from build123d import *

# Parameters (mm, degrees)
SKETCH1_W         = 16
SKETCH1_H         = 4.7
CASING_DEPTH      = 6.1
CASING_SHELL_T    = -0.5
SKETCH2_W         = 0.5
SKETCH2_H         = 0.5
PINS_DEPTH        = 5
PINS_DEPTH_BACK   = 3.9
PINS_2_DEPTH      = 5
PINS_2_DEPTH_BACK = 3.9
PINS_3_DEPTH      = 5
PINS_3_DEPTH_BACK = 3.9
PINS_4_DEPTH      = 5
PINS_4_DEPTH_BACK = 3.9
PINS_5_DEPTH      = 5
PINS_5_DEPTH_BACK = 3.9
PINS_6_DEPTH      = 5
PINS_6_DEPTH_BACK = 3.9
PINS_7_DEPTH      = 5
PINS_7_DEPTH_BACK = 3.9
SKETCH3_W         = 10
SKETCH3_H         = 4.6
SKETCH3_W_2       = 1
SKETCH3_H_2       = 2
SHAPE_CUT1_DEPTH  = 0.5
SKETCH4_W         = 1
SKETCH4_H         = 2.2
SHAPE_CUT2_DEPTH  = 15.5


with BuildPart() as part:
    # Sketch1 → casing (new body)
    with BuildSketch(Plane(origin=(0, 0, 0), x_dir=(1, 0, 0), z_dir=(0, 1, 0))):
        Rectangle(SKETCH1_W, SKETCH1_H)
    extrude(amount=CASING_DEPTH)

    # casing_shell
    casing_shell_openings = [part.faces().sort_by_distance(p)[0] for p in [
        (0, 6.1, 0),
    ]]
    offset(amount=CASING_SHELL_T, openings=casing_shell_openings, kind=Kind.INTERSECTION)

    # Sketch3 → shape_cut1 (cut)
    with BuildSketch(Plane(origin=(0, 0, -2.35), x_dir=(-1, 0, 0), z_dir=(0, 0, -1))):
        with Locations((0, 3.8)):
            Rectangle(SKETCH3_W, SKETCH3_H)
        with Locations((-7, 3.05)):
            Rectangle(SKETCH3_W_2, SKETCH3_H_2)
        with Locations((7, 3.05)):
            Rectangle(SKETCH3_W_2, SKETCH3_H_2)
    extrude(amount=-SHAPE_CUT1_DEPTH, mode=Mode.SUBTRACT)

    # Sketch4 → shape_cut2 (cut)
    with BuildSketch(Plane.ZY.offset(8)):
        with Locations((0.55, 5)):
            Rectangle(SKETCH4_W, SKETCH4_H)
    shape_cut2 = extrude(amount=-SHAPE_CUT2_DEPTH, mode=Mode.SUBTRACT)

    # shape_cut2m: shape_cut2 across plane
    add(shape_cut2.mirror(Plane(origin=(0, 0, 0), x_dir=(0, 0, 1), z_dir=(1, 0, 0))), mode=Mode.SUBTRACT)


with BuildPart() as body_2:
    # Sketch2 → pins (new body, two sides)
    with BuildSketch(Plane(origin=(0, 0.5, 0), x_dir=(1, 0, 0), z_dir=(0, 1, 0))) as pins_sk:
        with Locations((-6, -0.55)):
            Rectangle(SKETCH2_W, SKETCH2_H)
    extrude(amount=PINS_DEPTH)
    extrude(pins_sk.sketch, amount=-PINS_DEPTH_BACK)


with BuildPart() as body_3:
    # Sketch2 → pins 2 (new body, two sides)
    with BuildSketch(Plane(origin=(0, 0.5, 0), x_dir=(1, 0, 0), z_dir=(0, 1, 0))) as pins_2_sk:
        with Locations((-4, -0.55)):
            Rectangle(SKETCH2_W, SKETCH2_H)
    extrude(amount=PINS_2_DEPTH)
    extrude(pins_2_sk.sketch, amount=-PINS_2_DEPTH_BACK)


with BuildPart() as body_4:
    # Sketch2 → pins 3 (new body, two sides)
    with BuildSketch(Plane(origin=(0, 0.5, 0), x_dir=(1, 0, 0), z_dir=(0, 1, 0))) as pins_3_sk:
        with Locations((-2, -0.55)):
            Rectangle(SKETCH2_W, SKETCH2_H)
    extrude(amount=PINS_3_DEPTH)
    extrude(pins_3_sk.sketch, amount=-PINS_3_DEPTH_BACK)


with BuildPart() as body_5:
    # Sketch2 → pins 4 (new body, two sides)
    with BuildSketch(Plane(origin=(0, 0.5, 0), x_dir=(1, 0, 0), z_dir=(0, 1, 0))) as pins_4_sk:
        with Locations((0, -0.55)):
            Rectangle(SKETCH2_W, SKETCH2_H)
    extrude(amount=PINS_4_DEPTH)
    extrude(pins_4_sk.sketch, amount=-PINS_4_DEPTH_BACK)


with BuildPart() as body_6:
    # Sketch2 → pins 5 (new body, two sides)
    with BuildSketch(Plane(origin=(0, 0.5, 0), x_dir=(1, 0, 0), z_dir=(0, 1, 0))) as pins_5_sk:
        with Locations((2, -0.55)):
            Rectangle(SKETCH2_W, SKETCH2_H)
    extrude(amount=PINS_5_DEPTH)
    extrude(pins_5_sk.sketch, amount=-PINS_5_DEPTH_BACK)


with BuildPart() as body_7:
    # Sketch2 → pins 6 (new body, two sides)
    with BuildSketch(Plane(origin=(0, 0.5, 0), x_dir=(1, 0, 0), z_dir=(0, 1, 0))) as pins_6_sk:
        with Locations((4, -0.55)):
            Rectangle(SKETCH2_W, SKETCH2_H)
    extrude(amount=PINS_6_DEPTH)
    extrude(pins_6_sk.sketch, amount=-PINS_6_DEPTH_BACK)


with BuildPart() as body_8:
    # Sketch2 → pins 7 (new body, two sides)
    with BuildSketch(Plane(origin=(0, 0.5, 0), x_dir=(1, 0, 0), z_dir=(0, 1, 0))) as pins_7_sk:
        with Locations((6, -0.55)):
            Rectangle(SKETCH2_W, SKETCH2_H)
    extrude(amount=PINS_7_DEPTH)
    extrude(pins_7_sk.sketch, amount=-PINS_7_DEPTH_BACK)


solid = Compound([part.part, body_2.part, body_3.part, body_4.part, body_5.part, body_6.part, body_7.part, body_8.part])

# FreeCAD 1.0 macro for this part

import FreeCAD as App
import Part
import Sketcher

V = App.Vector
Q = App.Units.Quantity


def faces_at(feature, points):
    """Names of the faces that lie closest to the given points."""
    faces = feature.Shape.Faces
    near = lambda p: min(range(len(faces)), key=lambda i: faces[i].distToShape(Part.Vertex(*p))[0])
    return sorted({f"Face{near(p) + 1}" for p in points})


def add_polygon(sketch, points):
    """Adds a closed chain of lines whose ends are joined by coincident constraints."""
    first, n = sketch.GeometryCount, len(points)
    for a, b in zip(points, points[1:] + points[:1]):
        sketch.addGeometry(Part.LineSegment(App.Vector(*a, 0), App.Vector(*b, 0)), False)
    for i in range(n):
        sketch.addConstraint(Sketcher.Constraint("Coincident", first + i, 2, first + (i + 1) % n, 1))

doc = App.newDocument("Part")
body = doc.addObject("PartDesign::Body", "Body")

sketch1 = doc.addObject("Sketcher::SketchObject", "Sketch")
body.addObject(sketch1)
sketch1.AttachmentSupport = (doc.XZ_Plane, [""])
sketch1.MapMode = "FlatFace"
add_polygon(sketch1, [(-8, -2.35), (-8, 2.35), (8, 2.35), (8, -2.35)])
sketch1.addConstraint(Sketcher.Constraint("Vertical", 0))
sketch1.addConstraint(Sketcher.Constraint("Horizontal", 1))
sketch1.addConstraint(Sketcher.Constraint("Vertical", 2))
sketch1.addConstraint(Sketcher.Constraint("Horizontal", 3))
sketch1.addConstraint(Sketcher.Constraint("Symmetric", 0, 2, 2, 2, -1, 1))
sketch1.addConstraint(Sketcher.Constraint("DistanceX", 1, 1, 1, 2, Q("16 mm")))
sketch1.addConstraint(Sketcher.Constraint("DistanceY", 0, 1, 0, 2, Q("4.7 mm")))
pad1 = doc.addObject("PartDesign::Pad", "Pad")
body.addObject(pad1)
pad1.Profile = sketch1
pad1.Length = 6.1
pad1.Reversed = True
doc.recompute()

thickness = doc.addObject("PartDesign::Thickness", "Thickness")
body.addObject(thickness)
thickness.Base = (pad1, faces_at(pad1, [(0, 6.1, 0)]))
thickness.Value = 0.5
thickness.Reversed = True
thickness.Join = "Intersection"

sketch2 = doc.addObject("Sketcher::SketchObject", "Sketch001")
body.addObject(sketch2)
sketch2.AttachmentSupport = (doc.XY_Plane, [""])
sketch2.MapMode = "FlatFace"
sketch2.AttachmentOffset = App.Placement(V(0, 0, -2.35), App.Rotation())
add_polygon(sketch2, [(5, 6.1), (5, 1.5), (-5, 1.5), (-5, 6.1)])
add_polygon(sketch2, [(7.5, 4.05), (7.5, 2.05), (6.5, 2.05), (6.5, 4.05)])
add_polygon(sketch2, [(-6.5, 4.05), (-6.5, 2.05), (-7.5, 2.05), (-7.5, 4.05)])
sketch2.addConstraint(Sketcher.Constraint("Vertical", 0))
sketch2.addConstraint(Sketcher.Constraint("Horizontal", 1))
sketch2.addConstraint(Sketcher.Constraint("Vertical", 2))
sketch2.addConstraint(Sketcher.Constraint("Horizontal", 3))
sketch2.addConstraint(Sketcher.Constraint("Vertical", 4))
sketch2.addConstraint(Sketcher.Constraint("Horizontal", 5))
sketch2.addConstraint(Sketcher.Constraint("Vertical", 6))
sketch2.addConstraint(Sketcher.Constraint("Horizontal", 7))
sketch2.addConstraint(Sketcher.Constraint("Vertical", 8))
sketch2.addConstraint(Sketcher.Constraint("Horizontal", 9))
sketch2.addConstraint(Sketcher.Constraint("Vertical", 10))
sketch2.addConstraint(Sketcher.Constraint("Horizontal", 11))
sketch2.addConstraint(Sketcher.Constraint("Symmetric", 5, 2, 8, 2, -2))
sketch2.addConstraint(Sketcher.Constraint("Symmetric", 7, 2, 10, 2, -2))
sketch2.addConstraint(Sketcher.Constraint("DistanceX", 1, 2, 1, 1, Q("10 mm")))
sketch2.addConstraint(Sketcher.Constraint("DistanceX", 5, 2, 5, 1, Q("1 mm")))
sketch2.addConstraint(Sketcher.Constraint("DistanceY", 4, 2, 4, 1, Q("2 mm")))
sketch2.addConstraint(Sketcher.Constraint("DistanceY", 0, 2, 0, 1, Q("4.6 mm")))
sketch2.addConstraint(Sketcher.Constraint("DistanceX", -1, 1, 0, 2, Q("5 mm")))
sketch2.addConstraint(Sketcher.Constraint("DistanceX", 8, 2, 5, 2, Q("13 mm")))
sketch2.addConstraint(Sketcher.Constraint("DistanceY", -1, 1, 0, 2, Q("1.5 mm")))
sketch2.addConstraint(Sketcher.Constraint("DistanceY", -1, 1, 4, 2, Q("2.05 mm")))
pocket1 = doc.addObject("PartDesign::Pocket", "Pocket")
body.addObject(pocket1)
pocket1.Profile = sketch2
pocket1.Length = 0.5
pocket1.Reversed = True

sketch3 = doc.addObject("Sketcher::SketchObject", "Sketch002")
body.addObject(sketch3)
sketch3.AttachmentSupport = (doc.YZ_Plane, [""])
sketch3.MapMode = "FlatFace"
sketch3.AttachmentOffset = App.Placement(V(0, 0, -8), App.Rotation())
add_polygon(sketch3, [(6.1, 0.05), (3.9, 0.05), (3.9, 1.05), (6.1, 1.05)])
sketch3.addConstraint(Sketcher.Constraint("Horizontal", 0))
sketch3.addConstraint(Sketcher.Constraint("Vertical", 1))
sketch3.addConstraint(Sketcher.Constraint("Horizontal", 2))
sketch3.addConstraint(Sketcher.Constraint("Vertical", 3))
sketch3.addConstraint(Sketcher.Constraint("DistanceY", 1, 1, 1, 2, Q("1 mm")))
sketch3.addConstraint(Sketcher.Constraint("DistanceX", 0, 2, 0, 1, Q("2.2 mm")))
sketch3.addConstraint(Sketcher.Constraint("DistanceX", -1, 1, 0, 2, Q("3.9 mm")))
sketch3.addConstraint(Sketcher.Constraint("DistanceY", -1, 1, 0, 2, Q("0.05 mm")))
pocket2 = doc.addObject("PartDesign::Pocket", "Pocket001")
body.addObject(pocket2)
pocket2.Profile = sketch3
pocket2.Length = 15.5
pocket2.Reversed = True
doc.recompute()

mirrored = doc.addObject("PartDesign::Mirrored", "Mirrored")
body.addObject(mirrored)
mirrored.Originals = [pocket2]
mirrored.MirrorPlane = (doc.YZ_Plane, [""])
body.Tip = mirrored
body2 = doc.addObject("PartDesign::Body", "Body001")

sketch4 = doc.addObject("Sketcher::SketchObject", "Sketch003")
body2.addObject(sketch4)
sketch4.AttachmentSupport = (doc.getObject("XZ_Plane001"), [""])
sketch4.MapMode = "FlatFace"
sketch4.AttachmentOffset = App.Placement(V(0, 0, -0.5), App.Rotation())
add_polygon(sketch4, [(-6.25, 0.3), (-6.25, 0.8), (-5.75, 0.8), (-5.75, 0.3)])
sketch4.addConstraint(Sketcher.Constraint("Vertical", 0))
sketch4.addConstraint(Sketcher.Constraint("Horizontal", 1))
sketch4.addConstraint(Sketcher.Constraint("Vertical", 2))
sketch4.addConstraint(Sketcher.Constraint("Horizontal", 3))
sketch4.addConstraint(Sketcher.Constraint("Equal", 3, 0))
sketch4.addConstraint(Sketcher.Constraint("DistanceX", 1, 1, 1, 2, Q("0.5 mm")))
sketch4.addConstraint(Sketcher.Constraint("DistanceY", -1, 1, 0, 2, Q("0.8 mm")))
sketch4.addConstraint(Sketcher.Constraint("DistanceX", 0, 2, -1, 1, Q("6.25 mm")))
pad2 = doc.addObject("PartDesign::Pad", "Pad001")
body2.addObject(pad2)
pad2.Profile = sketch4
pad2.Type = "TwoLengths"
pad2.Length = 5
pad2.Length2 = 3.9
pad2.Reversed = True
body3 = doc.addObject("PartDesign::Body", "Body002")

sketch5 = doc.addObject("Sketcher::SketchObject", "Sketch004")
body3.addObject(sketch5)
sketch5.AttachmentSupport = (doc.getObject("XZ_Plane002"), [""])
sketch5.MapMode = "FlatFace"
sketch5.AttachmentOffset = App.Placement(V(0, 0, -0.5), App.Rotation())
add_polygon(sketch5, [(-4.25, 0.3), (-4.25, 0.8), (-3.75, 0.8), (-3.75, 0.3)])
sketch5.addConstraint(Sketcher.Constraint("Vertical", 0))
sketch5.addConstraint(Sketcher.Constraint("Horizontal", 1))
sketch5.addConstraint(Sketcher.Constraint("Vertical", 2))
sketch5.addConstraint(Sketcher.Constraint("Horizontal", 3))
sketch5.addConstraint(Sketcher.Constraint("Equal", 3, 0))
sketch5.addConstraint(Sketcher.Constraint("DistanceX", 1, 1, 1, 2, Q("0.5 mm")))
sketch5.addConstraint(Sketcher.Constraint("DistanceY", -1, 1, 0, 2, Q("0.8 mm")))
sketch5.addConstraint(Sketcher.Constraint("DistanceX", 0, 2, -1, 1, Q("4.25 mm")))
pad3 = doc.addObject("PartDesign::Pad", "Pad002")
body3.addObject(pad3)
pad3.Profile = sketch5
pad3.Type = "TwoLengths"
pad3.Length = 5
pad3.Length2 = 3.9
pad3.Reversed = True
body4 = doc.addObject("PartDesign::Body", "Body003")

sketch6 = doc.addObject("Sketcher::SketchObject", "Sketch005")
body4.addObject(sketch6)
sketch6.AttachmentSupport = (doc.getObject("XZ_Plane003"), [""])
sketch6.MapMode = "FlatFace"
sketch6.AttachmentOffset = App.Placement(V(0, 0, -0.5), App.Rotation())
add_polygon(sketch6, [(-2.25, 0.3), (-2.25, 0.8), (-1.75, 0.8), (-1.75, 0.3)])
sketch6.addConstraint(Sketcher.Constraint("Vertical", 0))
sketch6.addConstraint(Sketcher.Constraint("Horizontal", 1))
sketch6.addConstraint(Sketcher.Constraint("Vertical", 2))
sketch6.addConstraint(Sketcher.Constraint("Horizontal", 3))
sketch6.addConstraint(Sketcher.Constraint("Equal", 3, 0))
sketch6.addConstraint(Sketcher.Constraint("DistanceX", 1, 1, 1, 2, Q("0.5 mm")))
sketch6.addConstraint(Sketcher.Constraint("DistanceY", -1, 1, 0, 2, Q("0.8 mm")))
sketch6.addConstraint(Sketcher.Constraint("DistanceX", 0, 2, -1, 1, Q("2.25 mm")))
pad4 = doc.addObject("PartDesign::Pad", "Pad003")
body4.addObject(pad4)
pad4.Profile = sketch6
pad4.Type = "TwoLengths"
pad4.Length = 5
pad4.Length2 = 3.9
pad4.Reversed = True
body5 = doc.addObject("PartDesign::Body", "Body004")

sketch7 = doc.addObject("Sketcher::SketchObject", "Sketch006")
body5.addObject(sketch7)
sketch7.AttachmentSupport = (doc.getObject("XZ_Plane004"), [""])
sketch7.MapMode = "FlatFace"
sketch7.AttachmentOffset = App.Placement(V(0, 0, -0.5), App.Rotation())
add_polygon(sketch7, [(-0.25, 0.3), (-0.25, 0.8), (0.25, 0.8), (0.25, 0.3)])
sketch7.addConstraint(Sketcher.Constraint("Vertical", 0))
sketch7.addConstraint(Sketcher.Constraint("Horizontal", 1))
sketch7.addConstraint(Sketcher.Constraint("Vertical", 2))
sketch7.addConstraint(Sketcher.Constraint("Horizontal", 3))
sketch7.addConstraint(Sketcher.Constraint("Equal", 3, 0))
sketch7.addConstraint(Sketcher.Constraint("DistanceX", 1, 1, 1, 2, Q("0.5 mm")))
sketch7.addConstraint(Sketcher.Constraint("DistanceY", -1, 1, 0, 2, Q("0.8 mm")))
sketch7.addConstraint(Sketcher.Constraint("DistanceX", 0, 2, -1, 1, Q("0.25 mm")))
pad5 = doc.addObject("PartDesign::Pad", "Pad004")
body5.addObject(pad5)
pad5.Profile = sketch7
pad5.Type = "TwoLengths"
pad5.Length = 5
pad5.Length2 = 3.9
pad5.Reversed = True
body6 = doc.addObject("PartDesign::Body", "Body005")

sketch8 = doc.addObject("Sketcher::SketchObject", "Sketch007")
body6.addObject(sketch8)
sketch8.AttachmentSupport = (doc.getObject("XZ_Plane005"), [""])
sketch8.MapMode = "FlatFace"
sketch8.AttachmentOffset = App.Placement(V(0, 0, -0.5), App.Rotation())
add_polygon(sketch8, [(1.75, 0.3), (1.75, 0.8), (2.25, 0.8), (2.25, 0.3)])
sketch8.addConstraint(Sketcher.Constraint("Vertical", 0))
sketch8.addConstraint(Sketcher.Constraint("Horizontal", 1))
sketch8.addConstraint(Sketcher.Constraint("Vertical", 2))
sketch8.addConstraint(Sketcher.Constraint("Horizontal", 3))
sketch8.addConstraint(Sketcher.Constraint("Equal", 3, 0))
sketch8.addConstraint(Sketcher.Constraint("DistanceX", 1, 1, 1, 2, Q("0.5 mm")))
sketch8.addConstraint(Sketcher.Constraint("DistanceY", -1, 1, 0, 2, Q("0.8 mm")))
sketch8.addConstraint(Sketcher.Constraint("DistanceX", -1, 1, 0, 2, Q("1.75 mm")))
pad6 = doc.addObject("PartDesign::Pad", "Pad005")
body6.addObject(pad6)
pad6.Profile = sketch8
pad6.Type = "TwoLengths"
pad6.Length = 5
pad6.Length2 = 3.9
pad6.Reversed = True
body7 = doc.addObject("PartDesign::Body", "Body006")

sketch9 = doc.addObject("Sketcher::SketchObject", "Sketch008")
body7.addObject(sketch9)
sketch9.AttachmentSupport = (doc.getObject("XZ_Plane006"), [""])
sketch9.MapMode = "FlatFace"
sketch9.AttachmentOffset = App.Placement(V(0, 0, -0.5), App.Rotation())
add_polygon(sketch9, [(3.75, 0.3), (3.75, 0.8), (4.25, 0.8), (4.25, 0.3)])
sketch9.addConstraint(Sketcher.Constraint("Vertical", 0))
sketch9.addConstraint(Sketcher.Constraint("Horizontal", 1))
sketch9.addConstraint(Sketcher.Constraint("Vertical", 2))
sketch9.addConstraint(Sketcher.Constraint("Horizontal", 3))
sketch9.addConstraint(Sketcher.Constraint("Equal", 3, 0))
sketch9.addConstraint(Sketcher.Constraint("DistanceX", 1, 1, 1, 2, Q("0.5 mm")))
sketch9.addConstraint(Sketcher.Constraint("DistanceY", -1, 1, 0, 2, Q("0.8 mm")))
sketch9.addConstraint(Sketcher.Constraint("DistanceX", -1, 1, 0, 2, Q("3.75 mm")))
pad7 = doc.addObject("PartDesign::Pad", "Pad006")
body7.addObject(pad7)
pad7.Profile = sketch9
pad7.Type = "TwoLengths"
pad7.Length = 5
pad7.Length2 = 3.9
pad7.Reversed = True
body8 = doc.addObject("PartDesign::Body", "Body007")

sketch10 = doc.addObject("Sketcher::SketchObject", "Sketch009")
body8.addObject(sketch10)
sketch10.AttachmentSupport = (doc.getObject("XZ_Plane007"), [""])
sketch10.MapMode = "FlatFace"
sketch10.AttachmentOffset = App.Placement(V(0, 0, -0.5), App.Rotation())
add_polygon(sketch10, [(5.75, 0.3), (5.75, 0.8), (6.25, 0.8), (6.25, 0.3)])
sketch10.addConstraint(Sketcher.Constraint("Vertical", 0))
sketch10.addConstraint(Sketcher.Constraint("Horizontal", 1))
sketch10.addConstraint(Sketcher.Constraint("Vertical", 2))
sketch10.addConstraint(Sketcher.Constraint("Horizontal", 3))
sketch10.addConstraint(Sketcher.Constraint("Equal", 3, 0))
sketch10.addConstraint(Sketcher.Constraint("DistanceX", 1, 1, 1, 2, Q("0.5 mm")))
sketch10.addConstraint(Sketcher.Constraint("DistanceY", -1, 1, 0, 2, Q("0.8 mm")))
sketch10.addConstraint(Sketcher.Constraint("DistanceX", -1, 1, 0, 2, Q("5.75 mm")))
pad8 = doc.addObject("PartDesign::Pad", "Pad007")
body8.addObject(pad8)
pad8.Profile = sketch10
pad8.Type = "TwoLengths"
pad8.Length = 5
pad8.Length2 = 3.9
pad8.Reversed = True

doc.recompute()
